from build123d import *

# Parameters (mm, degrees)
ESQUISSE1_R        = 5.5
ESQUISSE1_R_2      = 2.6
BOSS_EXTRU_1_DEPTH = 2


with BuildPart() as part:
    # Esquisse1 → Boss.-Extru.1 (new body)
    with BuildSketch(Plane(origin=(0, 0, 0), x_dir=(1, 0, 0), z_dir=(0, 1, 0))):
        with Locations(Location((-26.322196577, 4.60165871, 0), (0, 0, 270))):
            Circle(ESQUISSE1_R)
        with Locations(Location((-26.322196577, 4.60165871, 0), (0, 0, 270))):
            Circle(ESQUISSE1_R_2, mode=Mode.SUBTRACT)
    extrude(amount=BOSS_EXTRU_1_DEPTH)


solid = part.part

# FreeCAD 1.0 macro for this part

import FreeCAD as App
import Part
import Sketcher
from FreeCAD import Vector
Q = App.Units.Quantity

doc = App.newDocument("Part")
body = doc.addObject("PartDesign::Body", "Body")

# Sketch on XZ plane
sketch1 = doc.addObject("Sketcher::SketchObject", "Sketch")
body.addObject(sketch1)
sketch1.AttachmentSupport = (doc.XZ_Plane, [""])
sketch1.MapMode = "FlatFace"
sketch1.addGeometry([
    Part.Circle(Vector(-26.3, -4.6, 0), Vector(0, 0, 1), 5.5),
    Part.Circle(Vector(-26.3, -4.6, 0), Vector(0, 0, 1), 2.6),
], False)
sketch1.addConstraint([
    Sketcher.Constraint("Coincident", 1, 3, 0, 3),
    Sketcher.Constraint("Diameter", 0, Q("11 mm")),
    Sketcher.Constraint("Diameter", 1, Q("5.2 mm")),
    Sketcher.Constraint("DistanceY", 0, 3, -1, 1, Q("4.601659 mm")),
    Sketcher.Constraint("DistanceX", 0, 3, -1, 1, Q("26.322197 mm")),
])
pad1 = doc.addObject("PartDesign::Pad", "Pad")
body.addObject(pad1)
pad1.Profile = sketch1
pad1.Length = 2
pad1.Reversed = True

doc.recompute()
